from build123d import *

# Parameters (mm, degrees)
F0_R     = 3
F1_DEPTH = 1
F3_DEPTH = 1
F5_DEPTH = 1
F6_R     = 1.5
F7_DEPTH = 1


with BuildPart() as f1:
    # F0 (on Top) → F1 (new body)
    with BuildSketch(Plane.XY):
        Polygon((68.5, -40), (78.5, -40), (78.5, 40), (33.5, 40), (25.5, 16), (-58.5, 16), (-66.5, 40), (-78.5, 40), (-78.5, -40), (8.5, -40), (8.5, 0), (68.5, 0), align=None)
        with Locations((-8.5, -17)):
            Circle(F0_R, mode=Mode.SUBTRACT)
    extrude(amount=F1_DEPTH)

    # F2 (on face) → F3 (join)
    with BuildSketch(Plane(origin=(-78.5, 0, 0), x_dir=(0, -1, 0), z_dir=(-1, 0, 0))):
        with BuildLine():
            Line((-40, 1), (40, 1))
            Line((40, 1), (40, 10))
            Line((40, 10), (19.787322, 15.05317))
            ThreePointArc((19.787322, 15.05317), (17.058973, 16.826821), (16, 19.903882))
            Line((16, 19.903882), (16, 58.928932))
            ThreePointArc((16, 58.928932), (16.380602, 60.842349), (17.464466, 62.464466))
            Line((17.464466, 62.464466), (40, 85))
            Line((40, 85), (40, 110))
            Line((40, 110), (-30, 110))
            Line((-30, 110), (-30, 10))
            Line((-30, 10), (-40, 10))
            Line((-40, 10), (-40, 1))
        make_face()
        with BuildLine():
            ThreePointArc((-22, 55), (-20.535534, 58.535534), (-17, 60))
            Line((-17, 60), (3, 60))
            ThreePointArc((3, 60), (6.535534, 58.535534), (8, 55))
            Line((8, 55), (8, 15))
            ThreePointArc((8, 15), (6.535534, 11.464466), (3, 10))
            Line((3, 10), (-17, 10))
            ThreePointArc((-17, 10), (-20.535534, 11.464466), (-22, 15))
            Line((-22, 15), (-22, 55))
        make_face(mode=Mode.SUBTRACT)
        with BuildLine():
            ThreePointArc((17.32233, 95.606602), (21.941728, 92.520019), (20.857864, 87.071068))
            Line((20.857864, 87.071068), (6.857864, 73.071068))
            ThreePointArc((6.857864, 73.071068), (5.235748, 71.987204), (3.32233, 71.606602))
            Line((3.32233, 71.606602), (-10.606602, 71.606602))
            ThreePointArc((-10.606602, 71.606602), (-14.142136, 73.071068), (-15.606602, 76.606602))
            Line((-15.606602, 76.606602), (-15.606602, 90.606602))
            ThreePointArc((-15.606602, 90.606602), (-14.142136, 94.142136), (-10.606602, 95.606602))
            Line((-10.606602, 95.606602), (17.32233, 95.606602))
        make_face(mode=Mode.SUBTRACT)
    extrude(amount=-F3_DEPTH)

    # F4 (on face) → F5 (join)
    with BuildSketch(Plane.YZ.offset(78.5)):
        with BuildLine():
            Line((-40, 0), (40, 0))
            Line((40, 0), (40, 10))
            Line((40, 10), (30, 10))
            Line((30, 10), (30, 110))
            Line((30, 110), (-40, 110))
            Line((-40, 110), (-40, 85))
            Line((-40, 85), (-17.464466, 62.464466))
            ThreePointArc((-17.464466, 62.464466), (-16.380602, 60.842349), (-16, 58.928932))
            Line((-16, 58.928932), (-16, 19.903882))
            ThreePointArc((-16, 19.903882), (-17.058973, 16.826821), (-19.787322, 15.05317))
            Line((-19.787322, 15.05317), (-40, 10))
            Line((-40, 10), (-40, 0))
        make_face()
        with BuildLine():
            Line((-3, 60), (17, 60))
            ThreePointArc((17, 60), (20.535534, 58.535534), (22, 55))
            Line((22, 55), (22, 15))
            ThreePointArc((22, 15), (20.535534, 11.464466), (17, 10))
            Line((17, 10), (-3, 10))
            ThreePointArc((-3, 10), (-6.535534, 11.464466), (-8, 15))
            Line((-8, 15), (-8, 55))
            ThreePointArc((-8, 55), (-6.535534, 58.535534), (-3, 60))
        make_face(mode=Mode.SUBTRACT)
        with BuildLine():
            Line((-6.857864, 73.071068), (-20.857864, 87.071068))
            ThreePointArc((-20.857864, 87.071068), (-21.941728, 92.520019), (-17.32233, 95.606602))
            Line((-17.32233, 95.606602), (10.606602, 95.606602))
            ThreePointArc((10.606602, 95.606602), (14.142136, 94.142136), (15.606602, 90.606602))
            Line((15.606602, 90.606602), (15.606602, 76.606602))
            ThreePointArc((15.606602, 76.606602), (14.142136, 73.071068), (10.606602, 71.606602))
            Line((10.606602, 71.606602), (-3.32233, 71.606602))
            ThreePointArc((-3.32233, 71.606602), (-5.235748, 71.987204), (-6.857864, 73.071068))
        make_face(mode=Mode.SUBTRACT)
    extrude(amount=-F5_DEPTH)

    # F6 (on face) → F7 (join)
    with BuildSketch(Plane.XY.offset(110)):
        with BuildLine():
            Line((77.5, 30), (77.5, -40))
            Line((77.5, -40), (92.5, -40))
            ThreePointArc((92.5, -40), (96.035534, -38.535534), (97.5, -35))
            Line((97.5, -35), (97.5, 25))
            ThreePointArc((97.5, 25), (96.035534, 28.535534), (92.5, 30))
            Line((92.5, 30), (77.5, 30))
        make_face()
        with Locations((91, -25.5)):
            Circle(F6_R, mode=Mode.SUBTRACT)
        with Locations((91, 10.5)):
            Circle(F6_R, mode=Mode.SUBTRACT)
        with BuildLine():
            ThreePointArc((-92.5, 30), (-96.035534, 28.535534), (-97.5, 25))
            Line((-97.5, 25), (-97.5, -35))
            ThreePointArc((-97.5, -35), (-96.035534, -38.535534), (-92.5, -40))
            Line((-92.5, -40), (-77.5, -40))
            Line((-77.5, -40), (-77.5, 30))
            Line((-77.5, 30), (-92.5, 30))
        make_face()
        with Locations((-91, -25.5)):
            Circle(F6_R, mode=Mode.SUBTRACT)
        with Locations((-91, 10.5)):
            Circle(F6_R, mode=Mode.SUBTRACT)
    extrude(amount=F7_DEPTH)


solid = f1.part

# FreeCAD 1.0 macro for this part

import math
import FreeCAD as App
import Part
import Sketcher

V = App.Vector
Q = App.Units.Quantity

doc = App.newDocument("Part")
body = doc.addObject("PartDesign::Body", "Body")

# Sketch on XY plane
sketch1 = body.newObject("Sketcher::SketchObject", "Sketch")
sketch1.AttachmentSupport = (doc.getObject("XY_Plane"), [""])
sketch1.MapMode = "FlatFace"
sketch1.addGeometry([
    Part.LineSegment(V(68.5, -40, 0), V(78.5, -40, 0)),  # 0
    Part.LineSegment(V(78.5, -40, 0), V(78.5, 40, 0)),  # 1
    Part.LineSegment(V(78.5, 40, 0), V(33.5, 40, 0)),  # 2
    Part.LineSegment(V(33.5, 40, 0), V(25.5, 16, 0)),  # 3
    Part.LineSegment(V(25.5, 16, 0), V(-58.5, 16, 0)),  # 4
    Part.LineSegment(V(-58.5, 16, 0), V(-66.5, 40, 0)),  # 5
    Part.LineSegment(V(-66.5, 40, 0), V(-78.5, 40, 0)),  # 6
    Part.LineSegment(V(-78.5, 40, 0), V(-78.5, -40, 0)),  # 7
    Part.LineSegment(V(-78.5, -40, 0), V(8.5, -40, 0)),  # 8
    Part.LineSegment(V(8.5, -40, 0), V(8.5, 0, 0)),  # 9
    Part.LineSegment(V(8.5, 0, 0), V(68.5, 0, 0)),  # 10
    Part.LineSegment(V(68.5, 0, 0), V(68.5, -40, 0)),  # 11
    Part.Circle(V(-8.5, -17, 0), V(0, 0, 1), 3),  # 12
], False)
sketch1.addConstraint([
    Sketcher.Constraint("Coincident", 0, 2, 1, 1),
    Sketcher.Constraint("Coincident", 1, 2, 2, 1),
    Sketcher.Constraint("Coincident", 2, 2, 3, 1),
    Sketcher.Constraint("Coincident", 3, 2, 4, 1),
    Sketcher.Constraint("Coincident", 4, 2, 5, 1),
    Sketcher.Constraint("Coincident", 5, 2, 6, 1),
    Sketcher.Constraint("Coincident", 6, 2, 7, 1),
    Sketcher.Constraint("Coincident", 7, 2, 8, 1),
    Sketcher.Constraint("Coincident", 8, 2, 9, 1),
    Sketcher.Constraint("Coincident", 9, 2, 10, 1),
    Sketcher.Constraint("Coincident", 10, 2, 11, 1),
    Sketcher.Constraint("Coincident", 11, 2, 0, 1),
    Sketcher.Constraint("Horizontal", 0),
    Sketcher.Constraint("Vertical", 1),
    Sketcher.Constraint("Horizontal", 2),
    Sketcher.Constraint("Horizontal", 4),
    Sketcher.Constraint("Horizontal", 6),
    Sketcher.Constraint("Vertical", 7),
    Sketcher.Constraint("Horizontal", 8),
    Sketcher.Constraint("Vertical", 9),
    Sketcher.Constraint("Horizontal", 10),
    Sketcher.Constraint("Vertical", 11),
    Sketcher.Constraint("Symmetric", 0, 2, 6, 2, -1, 1),
    Sketcher.Constraint("PointOnObject", 9, 2, -1),
    Sketcher.Constraint("Horizontal", 2, 2, 5, 2),
    Sketcher.Constraint("Horizontal", 0, 2, 7, 2),
    Sketcher.Constraint("Equal", 3, 5),
    Sketcher.Constraint("Diameter", 12, Q("6 mm")),
    Sketcher.Constraint("DistanceX", 0, 1, 0, 2, Q("10 mm")),
    Sketcher.Constraint("DistanceX", 2, 2, 2, 1, Q("45 mm")),
    Sketcher.Constraint("DistanceX", 4, 2, 4, 1, Q("84 mm")),
    Sketcher.Constraint("DistanceX", 6, 2, 6, 1, Q("12 mm")),
    Sketcher.Constraint("DistanceX", 8, 1, 8, 2, Q("87 mm")),
    Sketcher.Constraint("DistanceX", 10, 1, 10, 2, Q("60 mm")),
    Sketcher.Constraint("DistanceY", 1, 1, 1, 2, Q("80 mm")),
    Sketcher.Constraint("DistanceY", 12, 3, -1, 1, Q("17 mm")),
    Sketcher.Constraint("DistanceY", -1, 1, 3, 2, Q("16 mm")),
    Sketcher.Constraint("DistanceX", 12, 3, 0, 2, Q("87 mm")),
])
pad1 = body.newObject("PartDesign::Pad", "Pad")
pad1.Profile = sketch1
pad1.Length = 1

# Sketch on YZ plane
sketch2 = body.newObject("Sketcher::SketchObject", "Sketch001")
sketch2.AttachmentSupport = (doc.getObject("YZ_Plane"), [""])
sketch2.MapMode = "FlatFace"
sketch2.AttachmentOffset = App.Placement(V(0, 0, -78.5), App.Rotation())
sketch2.addGeometry([
    Part.LineSegment(V(40, 1, 0), V(-40, 1, 0)),  # 0
    Part.LineSegment(V(-40, 1, 0), V(-40, 10, 0)),  # 1
    Part.LineSegment(V(-40, 10, 0), V(-19.8, 15.1, 0)),  # 2
    Part.ArcOfCircle(Part.Circle(V(-21, 19.9, 0), V(0, 0, 1), 5), math.radians(-76), math.radians(0)),  # 3
    Part.LineSegment(V(-16, 19.9, 0), V(-16, 58.9, 0)),  # 4
    Part.ArcOfCircle(Part.Circle(V(-21, 58.9, 0), V(0, 0, 1), 5), math.radians(0), math.radians(45)),  # 5
    Part.LineSegment(V(-17.5, 62.5, 0), V(-40, 85, 0)),  # 6
    Part.LineSegment(V(-40, 85, 0), V(-40, 110, 0)),  # 7
    Part.LineSegment(V(-40, 110, 0), V(30, 110, 0)),  # 8
    Part.LineSegment(V(30, 110, 0), V(30, 10, 0)),  # 9
    Part.LineSegment(V(30, 10, 0), V(40, 10, 0)),  # 10
    Part.LineSegment(V(40, 10, 0), V(40, 1, 0)),  # 11
    Part.LineSegment(V(22, 15, 0), V(22, 55, 0)),  # 12
    Part.ArcOfCircle(Part.Circle(V(17, 55, 0), V(0, 0, 1), 5), math.radians(0), math.radians(90)),  # 13
    Part.LineSegment(V(17, 60, 0), V(-3, 60, 0)),  # 14
    Part.ArcOfCircle(Part.Circle(V(-3, 55, 0), V(0, 0, 1), 5), math.radians(90), math.radians(180)),  # 15
    Part.LineSegment(V(-8, 55, 0), V(-8, 15, 0)),  # 16
    Part.ArcOfCircle(Part.Circle(V(-3, 15, 0), V(0, 0, 1), 5), math.radians(180), math.radians(270)),  # 17
    Part.LineSegment(V(-3, 10, 0), V(17, 10, 0)),  # 18
    Part.ArcOfCircle(Part.Circle(V(17, 15, 0), V(0, 0, 1), 5), math.radians(-90), math.radians(0)),  # 19
    Part.LineSegment(V(10.6, 95.6, 0), V(-17.3, 95.6, 0)),  # 20
    Part.ArcOfCircle(Part.Circle(V(-17.3, 90.6, 0), V(0, 0, 1), 5), math.radians(90), math.radians(225)),  # 21
    Part.LineSegment(V(-20.9, 87.1, 0), V(-6.9, 73.1, 0)),  # 22
    Part.ArcOfCircle(Part.Circle(V(-3.3, 76.6, 0), V(0, 0, 1), 5), math.radians(-135), math.radians(-90)),  # 23
    Part.LineSegment(V(-3.3, 71.6, 0), V(10.6, 71.6, 0)),  # 24
    Part.ArcOfCircle(Part.Circle(V(10.6, 76.6, 0), V(0, 0, 1), 5), math.radians(-90), math.radians(0)),  # 25
    Part.LineSegment(V(15.6, 76.6, 0), V(15.6, 90.6, 0)),  # 26
    Part.ArcOfCircle(Part.Circle(V(10.6, 90.6, 0), V(0, 0, 1), 5), math.radians(0), math.radians(90)),  # 27
], False)
sketch2.addConstraint([
    Sketcher.Constraint("Coincident", 0, 2, 1, 1),
    Sketcher.Constraint("Coincident", 1, 2, 2, 1),
    Sketcher.Constraint("Tangent", 2, 2, 3, 1),
    Sketcher.Constraint("Tangent", 3, 2, 4, 1),
    Sketcher.Constraint("Tangent", 4, 2, 5, 1),
    Sketcher.Constraint("Tangent", 5, 2, 6, 1),
    Sketcher.Constraint("Coincident", 6, 2, 7, 1),
    Sketcher.Constraint("Coincident", 7, 2, 8, 1),
    Sketcher.Constraint("Coincident", 8, 2, 9, 1),
    Sketcher.Constraint("Coincident", 9, 2, 10, 1),
    Sketcher.Constraint("Coincident", 10, 2, 11, 1),
    Sketcher.Constraint("Coincident", 11, 2, 0, 1),
    Sketcher.Constraint("Tangent", 12, 2, 13, 1),
    Sketcher.Constraint("Tangent", 13, 2, 14, 1),
    Sketcher.Constraint("Tangent", 14, 2, 15, 1),
    Sketcher.Constraint("Tangent", 15, 2, 16, 1),
    Sketcher.Constraint("Tangent", 16, 2, 17, 1),
    Sketcher.Constraint("Tangent", 17, 2, 18, 1),
    Sketcher.Constraint("Tangent", 18, 2, 19, 1),
    Sketcher.Constraint("Tangent", 19, 2, 12, 1),
    Sketcher.Constraint("Tangent", 20, 2, 21, 1),
    Sketcher.Constraint("Tangent", 21, 2, 22, 1),
    Sketcher.Constraint("Tangent", 22, 2, 23, 1),
    Sketcher.Constraint("Tangent", 23, 2, 24, 1),
    Sketcher.Constraint("Tangent", 24, 2, 25, 1),
    Sketcher.Constraint("Tangent", 25, 2, 26, 1),
    Sketcher.Constraint("Tangent", 26, 2, 27, 1),
    Sketcher.Constraint("Tangent", 27, 2, 20, 1),
    Sketcher.Constraint("Horizontal", 0),
    Sketcher.Constraint("Vertical", 1),
    Sketcher.Constraint("Vertical", 4),
    Sketcher.Constraint("Vertical", 7),
    Sketcher.Constraint("Horizontal", 8),
    Sketcher.Constraint("Vertical", 9),
    Sketcher.Constraint("Horizontal", 10),
    Sketcher.Constraint("Vertical", 11),
    Sketcher.Constraint("Vertical", 12),
    Sketcher.Constraint("Horizontal", 14),
    Sketcher.Constraint("Vertical", 16),
    Sketcher.Constraint("Horizontal", 18),
    Sketcher.Constraint("Horizontal", 20),
    Sketcher.Constraint("Horizontal", 24),
    Sketcher.Constraint("Vertical", 26),
    Sketcher.Constraint("Equal", 3, 5),
    Sketcher.Constraint("Equal", 5, 13),
    Sketcher.Constraint("Equal", 13, 15),
    Sketcher.Constraint("Equal", 15, 17),
    Sketcher.Constraint("Equal", 17, 19),
    Sketcher.Constraint("Equal", 19, 21),
    Sketcher.Constraint("Equal", 21, 25),
    Sketcher.Constraint("Equal", 25, 27),
    Sketcher.Constraint("Symmetric", 1, 2, 10, 2, -2),
    Sketcher.Constraint("Parallel", 6, 22),
    Sketcher.Constraint("Horizontal", 10, 2, 17, 2),
    Sketcher.Constraint("Vertical", 1, 2, 6, 2),
    Sketcher.Constraint("Radius", 3, Q("4.999999 mm")),
    Sketcher.Constraint("DistanceX", 0, 2, 0, 1, Q("80 mm")),
    Sketcher.Constraint("DistanceX", 8, 1, 8, 2, Q("70 mm")),
    Sketcher.Constraint("DistanceX", 14, 2, 14, 1, Q("20 mm")),
    Sketcher.Constraint("DistanceY", 1, 1, 1, 2, Q("9 mm")),
    Sketcher.Constraint("DistanceY", 7, 1, 7, 2, Q("25 mm")),
    Sketcher.Constraint("DistanceY", 9, 2, 9, 1, Q("100 mm")),
    Sketcher.Constraint("DistanceY", 12, 1, 12, 2, Q("40 mm")),
    Sketcher.Constraint("DistanceY", 26, 1, 26, 2, Q("14 mm")),
    Sketcher.Constraint("Angle", 6, Q("135 deg")),
    Sketcher.Constraint("DistanceX", 3, 3, -1, 1, Q("20.999999 mm")),
    Sketcher.Constraint("DistanceX", -1, 1, 13, 3, Q("17 mm")),
    Sketcher.Constraint("DistanceY", -1, 1, 13, 3, Q("55 mm")),
    Sketcher.Constraint("Radius", 23, Q("4.999993 mm")),
    Sketcher.Constraint("DistanceY", 4, 1, 4, 2, Q("39.02505 mm")),
    Sketcher.Constraint("DistanceY", -1, 1, 25, 3, Q("76.606602 mm")),
    Sketcher.Constraint("DistanceX", -1, 1, 25, 2, Q("15.606602 mm")),
    Sketcher.Constraint("DistanceX", 21, 2, 5, 2, Q("3.393398 mm")),
])
pad2 = body.newObject("PartDesign::Pad", "Pad001")
pad2.Profile = sketch2
pad2.Length = 1

# Sketch on YZ plane
sketch3 = body.newObject("Sketcher::SketchObject", "Sketch002")
sketch3.AttachmentSupport = (doc.getObject("YZ_Plane"), [""])
sketch3.MapMode = "FlatFace"
sketch3.AttachmentOffset = App.Placement(V(0, 0, 78.5), App.Rotation())
sketch3.addGeometry([
    Part.LineSegment(V(-40, 0, 0), V(40, 0, 0)),  # 0
    Part.LineSegment(V(40, 0, 0), V(40, 10, 0)),  # 1
    Part.LineSegment(V(40, 10, 0), V(30, 10, 0)),  # 2
    Part.LineSegment(V(30, 10, 0), V(30, 110, 0)),  # 3
    Part.LineSegment(V(30, 110, 0), V(-40, 110, 0)),  # 4
    Part.LineSegment(V(-40, 110, 0), V(-40, 85, 0)),  # 5
    Part.LineSegment(V(-40, 85, 0), V(-17.5, 62.5, 0)),  # 6
    Part.ArcOfCircle(Part.Circle(V(-21, 58.9, 0), V(0, 0, 1), 5), math.radians(0), math.radians(45)),  # 7
    Part.LineSegment(V(-16, 58.9, 0), V(-16, 19.9, 0)),  # 8
    Part.ArcOfCircle(Part.Circle(V(-21, 19.9, 0), V(0, 0, 1), 5), math.radians(-76), math.radians(0)),  # 9
    Part.LineSegment(V(-19.8, 15.1, 0), V(-40, 10, 0)),  # 10
    Part.LineSegment(V(-40, 10, 0), V(-40, 0, 0)),  # 11
    Part.ArcOfCircle(Part.Circle(V(-3, 55, 0), V(0, 0, 1), 5), math.radians(90), math.radians(180)),  # 12
    Part.LineSegment(V(-3, 60, 0), V(17, 60, 0)),  # 13
    Part.ArcOfCircle(Part.Circle(V(17, 55, 0), V(0, 0, 1), 5), math.radians(0), math.radians(90)),  # 14
    Part.LineSegment(V(22, 55, 0), V(22, 15, 0)),  # 15
    Part.ArcOfCircle(Part.Circle(V(17, 15, 0), V(0, 0, 1), 5), math.radians(-90), math.radians(0)),  # 16
    Part.LineSegment(V(17, 10, 0), V(-3, 10, 0)),  # 17
    Part.ArcOfCircle(Part.Circle(V(-3, 15, 0), V(0, 0, 1), 5), math.radians(180), math.radians(270)),  # 18
    Part.LineSegment(V(-8, 15, 0), V(-8, 55, 0)),  # 19
    Part.ArcOfCircle(Part.Circle(V(-3.3, 76.6, 0), V(0, 0, 1), 5), math.radians(-135), math.radians(-90)),  # 20
    Part.LineSegment(V(-6.9, 73.1, 0), V(-20.9, 87.1, 0)),  # 21
    Part.ArcOfCircle(Part.Circle(V(-17.3, 90.6, 0), V(0, 0, 1), 5), math.radians(90), math.radians(225)),  # 22
    Part.LineSegment(V(-17.3, 95.6, 0), V(10.6, 95.6, 0)),  # 23
    Part.ArcOfCircle(Part.Circle(V(10.6, 90.6, 0), V(0, 0, 1), 5), math.radians(0), math.radians(90)),  # 24
    Part.LineSegment(V(15.6, 90.6, 0), V(15.6, 76.6, 0)),  # 25
    Part.ArcOfCircle(Part.Circle(V(10.6, 76.6, 0), V(0, 0, 1), 5), math.radians(-90), math.radians(0)),  # 26
    Part.LineSegment(V(10.6, 71.6, 0), V(-3.3, 71.6, 0)),  # 27
], False)
sketch3.addConstraint([
    Sketcher.Constraint("Coincident", 0, 2, 1, 1),
    Sketcher.Constraint("Coincident", 1, 2, 2, 1),
    Sketcher.Constraint("Coincident", 2, 2, 3, 1),
    Sketcher.Constraint("Coincident", 3, 2, 4, 1),
    Sketcher.Constraint("Coincident", 4, 2, 5, 1),
    Sketcher.Constraint("Coincident", 5, 2, 6, 1),
    Sketcher.Constraint("Tangent", 6, 2, 7, 2),
    Sketcher.Constraint("Tangent", 7, 1, 8, 1),
    Sketcher.Constraint("Tangent", 8, 2, 9, 2),
    Sketcher.Constraint("Tangent", 9, 1, 10, 1),
    Sketcher.Constraint("Coincident", 10, 2, 11, 1),
    Sketcher.Constraint("Coincident", 11, 2, 0, 1),
    Sketcher.Constraint("Tangent", 12, 1, 13, 1),
    Sketcher.Constraint("Tangent", 13, 2, 14, 2),
    Sketcher.Constraint("Tangent", 14, 1, 15, 1),
    Sketcher.Constraint("Tangent", 15, 2, 16, 2),
    Sketcher.Constraint("Tangent", 16, 1, 17, 1),
    Sketcher.Constraint("Tangent", 17, 2, 18, 2),
    Sketcher.Constraint("Tangent", 18, 1, 19, 1),
    Sketcher.Constraint("Tangent", 19, 2, 12, 2),
    Sketcher.Constraint("Tangent", 20, 1, 21, 1),
    Sketcher.Constraint("Tangent", 21, 2, 22, 2),
    Sketcher.Constraint("Tangent", 22, 1, 23, 1),
    Sketcher.Constraint("Tangent", 23, 2, 24, 2),
    Sketcher.Constraint("Tangent", 24, 1, 25, 1),
    Sketcher.Constraint("Tangent", 25, 2, 26, 2),
    Sketcher.Constraint("Tangent", 26, 1, 27, 1),
    Sketcher.Constraint("Tangent", 27, 2, 20, 2),
    Sketcher.Constraint("Horizontal", 0),
    Sketcher.Constraint("Vertical", 1),
    Sketcher.Constraint("Horizontal", 2),
    Sketcher.Constraint("Vertical", 3),
    Sketcher.Constraint("Horizontal", 4),
    Sketcher.Constraint("Vertical", 5),
    Sketcher.Constraint("Vertical", 8),
    Sketcher.Constraint("Vertical", 11),
    Sketcher.Constraint("Horizontal", 13),
    Sketcher.Constraint("Vertical", 15),
    Sketcher.Constraint("Horizontal", 17),
    Sketcher.Constraint("Vertical", 19),
    Sketcher.Constraint("Horizontal", 23),
    Sketcher.Constraint("Vertical", 25),
    Sketcher.Constraint("Horizontal", 27),
    Sketcher.Constraint("Equal", 7, 9),
    Sketcher.Constraint("Equal", 9, 12),
    Sketcher.Constraint("Equal", 12, 14),
    Sketcher.Constraint("Equal", 14, 16),
    Sketcher.Constraint("Equal", 16, 18),
    Sketcher.Constraint("Equal", 18, 22),
    Sketcher.Constraint("Equal", 22, 24),
    Sketcher.Constraint("Equal", 24, 26),
    Sketcher.Constraint("Symmetric", 0, 2, 11, 2, -1, 1),
    Sketcher.Constraint("Parallel", 6, 21),
    Sketcher.Constraint("Horizontal", 2, 2, 10, 2),
    Sketcher.Constraint("Horizontal", 10, 2, 16, 1),
    Sketcher.Constraint("Vertical", 5, 2, 10, 2),
    Sketcher.Constraint("Equal", 2, 1),
    Sketcher.Constraint("Radius", 9, Q("4.999999 mm")),
    Sketcher.Constraint("DistanceX", 0, 1, 0, 2, Q("80 mm")),
    Sketcher.Constraint("DistanceX", 2, 2, 2, 1, Q("10 mm")),
    Sketcher.Constraint("DistanceX", 13, 1, 13, 2, Q("20 mm")),
    Sketcher.Constraint("DistanceY", 3, 1, 3, 2, Q("100 mm")),
    Sketcher.Constraint("DistanceY", 5, 2, 5, 1, Q("25 mm")),
    Sketcher.Constraint("DistanceY", 15, 2, 15, 1, Q("40 mm")),
    Sketcher.Constraint("DistanceY", 25, 2, 25, 1, Q("14 mm")),
    Sketcher.Constraint("Angle", 6, Q("-45 deg")),
    Sketcher.Constraint("DistanceX", 9, 3, -1, 1, Q("20.999999 mm")),
    Sketcher.Constraint("DistanceX", 12, 3, -1, 1, Q("3 mm")),
    Sketcher.Constraint("DistanceX", 21, 2, 20, 1, Q("14 mm")),
    Sketcher.Constraint("DistanceY", 8, 2, 8, 1, Q("39.02505 mm")),
    Sketcher.Constraint("DistanceY", -1, 1, 26, 3, Q("76.606602 mm")),
    Sketcher.Constraint("DistanceX", -1, 1, 24, 1, Q("15.606602 mm")),
    Sketcher.Constraint("DistanceX", 23, 1, 23, 2, Q("27.928932 mm")),
])
pad3 = body.newObject("PartDesign::Pad", "Pad002")
pad3.Profile = sketch3
pad3.Length = 1
pad3.Reversed = True

# Sketch on XY plane
sketch4 = body.newObject("Sketcher::SketchObject", "Sketch003")
sketch4.AttachmentSupport = (doc.getObject("XY_Plane"), [""])
sketch4.MapMode = "FlatFace"
sketch4.AttachmentOffset = App.Placement(V(0, 0, 110), App.Rotation())
sketch4.addGeometry([
    Part.LineSegment(V(77.5, 30, 0), V(77.5, -40, 0)),  # 0
    Part.LineSegment(V(77.5, -40, 0), V(92.5, -40, 0)),  # 1
    Part.ArcOfCircle(Part.Circle(V(92.5, -35, 0), V(0, 0, 1), 5), math.radians(-90), math.radians(0)),  # 2
    Part.LineSegment(V(97.5, -35, 0), V(97.5, 25, 0)),  # 3
    Part.ArcOfCircle(Part.Circle(V(92.5, 25, 0), V(0, 0, 1), 5), math.radians(0), math.radians(90)),  # 4
    Part.LineSegment(V(92.5, 30, 0), V(77.5, 30, 0)),  # 5
    Part.Circle(V(91, -25.5, 0), V(0, 0, 1), 1.5),  # 6
    Part.Circle(V(91, 10.5, 0), V(0, 0, 1), 1.5),  # 7
    Part.ArcOfCircle(Part.Circle(V(-92.5, 25, 0), V(0, 0, 1), 5), math.radians(90), math.radians(180)),  # 8
    Part.LineSegment(V(-97.5, 25, 0), V(-97.5, -35, 0)),  # 9
    Part.ArcOfCircle(Part.Circle(V(-92.5, -35, 0), V(0, 0, 1), 5), math.radians(180), math.radians(270)),  # 10
    Part.LineSegment(V(-92.5, -40, 0), V(-77.5, -40, 0)),  # 11
    Part.LineSegment(V(-77.5, -40, 0), V(-77.5, 30, 0)),  # 12
    Part.LineSegment(V(-77.5, 30, 0), V(-92.5, 30, 0)),  # 13
    Part.Circle(V(-91, -25.5, 0), V(0, 0, 1), 1.5),  # 14
    Part.Circle(V(-91, 10.5, 0), V(0, 0, 1), 1.5),  # 15
], False)
sketch4.addConstraint([
    Sketcher.Constraint("Coincident", 0, 2, 1, 1),
    Sketcher.Constraint("Tangent", 1, 2, 2, 1),
    Sketcher.Constraint("Tangent", 2, 2, 3, 1),
    Sketcher.Constraint("Tangent", 3, 2, 4, 1),
    Sketcher.Constraint("Tangent", 4, 2, 5, 1),
    Sketcher.Constraint("Coincident", 5, 2, 0, 1),
    Sketcher.Constraint("Tangent", 8, 2, 9, 1),
    Sketcher.Constraint("Tangent", 9, 2, 10, 1),
    Sketcher.Constraint("Tangent", 10, 2, 11, 1),
    Sketcher.Constraint("Coincident", 11, 2, 12, 1),
    Sketcher.Constraint("Coincident", 12, 2, 13, 1),
    Sketcher.Constraint("Tangent", 13, 2, 8, 1),
    Sketcher.Constraint("Vertical", 0),
    Sketcher.Constraint("Horizontal", 1),
    Sketcher.Constraint("Vertical", 3),
    Sketcher.Constraint("Horizontal", 5),
    Sketcher.Constraint("Vertical", 9),
    Sketcher.Constraint("Horizontal", 11),
    Sketcher.Constraint("Vertical", 12),
    Sketcher.Constraint("Horizontal", 13),
    Sketcher.Constraint("Equal", 2, 4),
    Sketcher.Constraint("Equal", 6, 7),
    Sketcher.Constraint("Equal", 4, 8),
    Sketcher.Constraint("Equal", 8, 10),
    Sketcher.Constraint("Equal", 7, 14),
    Sketcher.Constraint("Equal", 14, 15),
    Sketcher.Constraint("Symmetric", 4, 3, 8, 3, -2),
    Sketcher.Constraint("Symmetric", 6, 3, 14, 3, -2),
    Sketcher.Constraint("Symmetric", 7, 3, 15, 3, -2),
    Sketcher.Constraint("Symmetric", 0, 2, 11, 2, -2),
    Sketcher.Constraint("Vertical", 6, 3, 7, 3),
    Sketcher.Constraint("Diameter", 6, Q("3 mm")),
    Sketcher.Constraint("Radius", 2, Q("5 mm")),
    Sketcher.Constraint("DistanceX", 1, 1, 1, 2, Q("15 mm")),
    Sketcher.Constraint("DistanceY", 0, 2, 0, 1, Q("70 mm")),
    Sketcher.Constraint("DistanceY", 2, 3, -1, 1, Q("35 mm")),
    Sketcher.Constraint("DistanceX", -1, 1, 6, 3, Q("91 mm")),
    Sketcher.Constraint("DistanceY", 6, 3, 7, 3, Q("36 mm")),
    Sketcher.Constraint("DistanceX", 8, 3, 4, 3, Q("185.000001 mm")),
    Sketcher.Constraint("DistanceY", 6, 3, -1, 1, Q("25.5 mm")),
])
pad4 = body.newObject("PartDesign::Pad", "Pad003")
pad4.Profile = sketch4
pad4.Length = 1

doc.recompute()
